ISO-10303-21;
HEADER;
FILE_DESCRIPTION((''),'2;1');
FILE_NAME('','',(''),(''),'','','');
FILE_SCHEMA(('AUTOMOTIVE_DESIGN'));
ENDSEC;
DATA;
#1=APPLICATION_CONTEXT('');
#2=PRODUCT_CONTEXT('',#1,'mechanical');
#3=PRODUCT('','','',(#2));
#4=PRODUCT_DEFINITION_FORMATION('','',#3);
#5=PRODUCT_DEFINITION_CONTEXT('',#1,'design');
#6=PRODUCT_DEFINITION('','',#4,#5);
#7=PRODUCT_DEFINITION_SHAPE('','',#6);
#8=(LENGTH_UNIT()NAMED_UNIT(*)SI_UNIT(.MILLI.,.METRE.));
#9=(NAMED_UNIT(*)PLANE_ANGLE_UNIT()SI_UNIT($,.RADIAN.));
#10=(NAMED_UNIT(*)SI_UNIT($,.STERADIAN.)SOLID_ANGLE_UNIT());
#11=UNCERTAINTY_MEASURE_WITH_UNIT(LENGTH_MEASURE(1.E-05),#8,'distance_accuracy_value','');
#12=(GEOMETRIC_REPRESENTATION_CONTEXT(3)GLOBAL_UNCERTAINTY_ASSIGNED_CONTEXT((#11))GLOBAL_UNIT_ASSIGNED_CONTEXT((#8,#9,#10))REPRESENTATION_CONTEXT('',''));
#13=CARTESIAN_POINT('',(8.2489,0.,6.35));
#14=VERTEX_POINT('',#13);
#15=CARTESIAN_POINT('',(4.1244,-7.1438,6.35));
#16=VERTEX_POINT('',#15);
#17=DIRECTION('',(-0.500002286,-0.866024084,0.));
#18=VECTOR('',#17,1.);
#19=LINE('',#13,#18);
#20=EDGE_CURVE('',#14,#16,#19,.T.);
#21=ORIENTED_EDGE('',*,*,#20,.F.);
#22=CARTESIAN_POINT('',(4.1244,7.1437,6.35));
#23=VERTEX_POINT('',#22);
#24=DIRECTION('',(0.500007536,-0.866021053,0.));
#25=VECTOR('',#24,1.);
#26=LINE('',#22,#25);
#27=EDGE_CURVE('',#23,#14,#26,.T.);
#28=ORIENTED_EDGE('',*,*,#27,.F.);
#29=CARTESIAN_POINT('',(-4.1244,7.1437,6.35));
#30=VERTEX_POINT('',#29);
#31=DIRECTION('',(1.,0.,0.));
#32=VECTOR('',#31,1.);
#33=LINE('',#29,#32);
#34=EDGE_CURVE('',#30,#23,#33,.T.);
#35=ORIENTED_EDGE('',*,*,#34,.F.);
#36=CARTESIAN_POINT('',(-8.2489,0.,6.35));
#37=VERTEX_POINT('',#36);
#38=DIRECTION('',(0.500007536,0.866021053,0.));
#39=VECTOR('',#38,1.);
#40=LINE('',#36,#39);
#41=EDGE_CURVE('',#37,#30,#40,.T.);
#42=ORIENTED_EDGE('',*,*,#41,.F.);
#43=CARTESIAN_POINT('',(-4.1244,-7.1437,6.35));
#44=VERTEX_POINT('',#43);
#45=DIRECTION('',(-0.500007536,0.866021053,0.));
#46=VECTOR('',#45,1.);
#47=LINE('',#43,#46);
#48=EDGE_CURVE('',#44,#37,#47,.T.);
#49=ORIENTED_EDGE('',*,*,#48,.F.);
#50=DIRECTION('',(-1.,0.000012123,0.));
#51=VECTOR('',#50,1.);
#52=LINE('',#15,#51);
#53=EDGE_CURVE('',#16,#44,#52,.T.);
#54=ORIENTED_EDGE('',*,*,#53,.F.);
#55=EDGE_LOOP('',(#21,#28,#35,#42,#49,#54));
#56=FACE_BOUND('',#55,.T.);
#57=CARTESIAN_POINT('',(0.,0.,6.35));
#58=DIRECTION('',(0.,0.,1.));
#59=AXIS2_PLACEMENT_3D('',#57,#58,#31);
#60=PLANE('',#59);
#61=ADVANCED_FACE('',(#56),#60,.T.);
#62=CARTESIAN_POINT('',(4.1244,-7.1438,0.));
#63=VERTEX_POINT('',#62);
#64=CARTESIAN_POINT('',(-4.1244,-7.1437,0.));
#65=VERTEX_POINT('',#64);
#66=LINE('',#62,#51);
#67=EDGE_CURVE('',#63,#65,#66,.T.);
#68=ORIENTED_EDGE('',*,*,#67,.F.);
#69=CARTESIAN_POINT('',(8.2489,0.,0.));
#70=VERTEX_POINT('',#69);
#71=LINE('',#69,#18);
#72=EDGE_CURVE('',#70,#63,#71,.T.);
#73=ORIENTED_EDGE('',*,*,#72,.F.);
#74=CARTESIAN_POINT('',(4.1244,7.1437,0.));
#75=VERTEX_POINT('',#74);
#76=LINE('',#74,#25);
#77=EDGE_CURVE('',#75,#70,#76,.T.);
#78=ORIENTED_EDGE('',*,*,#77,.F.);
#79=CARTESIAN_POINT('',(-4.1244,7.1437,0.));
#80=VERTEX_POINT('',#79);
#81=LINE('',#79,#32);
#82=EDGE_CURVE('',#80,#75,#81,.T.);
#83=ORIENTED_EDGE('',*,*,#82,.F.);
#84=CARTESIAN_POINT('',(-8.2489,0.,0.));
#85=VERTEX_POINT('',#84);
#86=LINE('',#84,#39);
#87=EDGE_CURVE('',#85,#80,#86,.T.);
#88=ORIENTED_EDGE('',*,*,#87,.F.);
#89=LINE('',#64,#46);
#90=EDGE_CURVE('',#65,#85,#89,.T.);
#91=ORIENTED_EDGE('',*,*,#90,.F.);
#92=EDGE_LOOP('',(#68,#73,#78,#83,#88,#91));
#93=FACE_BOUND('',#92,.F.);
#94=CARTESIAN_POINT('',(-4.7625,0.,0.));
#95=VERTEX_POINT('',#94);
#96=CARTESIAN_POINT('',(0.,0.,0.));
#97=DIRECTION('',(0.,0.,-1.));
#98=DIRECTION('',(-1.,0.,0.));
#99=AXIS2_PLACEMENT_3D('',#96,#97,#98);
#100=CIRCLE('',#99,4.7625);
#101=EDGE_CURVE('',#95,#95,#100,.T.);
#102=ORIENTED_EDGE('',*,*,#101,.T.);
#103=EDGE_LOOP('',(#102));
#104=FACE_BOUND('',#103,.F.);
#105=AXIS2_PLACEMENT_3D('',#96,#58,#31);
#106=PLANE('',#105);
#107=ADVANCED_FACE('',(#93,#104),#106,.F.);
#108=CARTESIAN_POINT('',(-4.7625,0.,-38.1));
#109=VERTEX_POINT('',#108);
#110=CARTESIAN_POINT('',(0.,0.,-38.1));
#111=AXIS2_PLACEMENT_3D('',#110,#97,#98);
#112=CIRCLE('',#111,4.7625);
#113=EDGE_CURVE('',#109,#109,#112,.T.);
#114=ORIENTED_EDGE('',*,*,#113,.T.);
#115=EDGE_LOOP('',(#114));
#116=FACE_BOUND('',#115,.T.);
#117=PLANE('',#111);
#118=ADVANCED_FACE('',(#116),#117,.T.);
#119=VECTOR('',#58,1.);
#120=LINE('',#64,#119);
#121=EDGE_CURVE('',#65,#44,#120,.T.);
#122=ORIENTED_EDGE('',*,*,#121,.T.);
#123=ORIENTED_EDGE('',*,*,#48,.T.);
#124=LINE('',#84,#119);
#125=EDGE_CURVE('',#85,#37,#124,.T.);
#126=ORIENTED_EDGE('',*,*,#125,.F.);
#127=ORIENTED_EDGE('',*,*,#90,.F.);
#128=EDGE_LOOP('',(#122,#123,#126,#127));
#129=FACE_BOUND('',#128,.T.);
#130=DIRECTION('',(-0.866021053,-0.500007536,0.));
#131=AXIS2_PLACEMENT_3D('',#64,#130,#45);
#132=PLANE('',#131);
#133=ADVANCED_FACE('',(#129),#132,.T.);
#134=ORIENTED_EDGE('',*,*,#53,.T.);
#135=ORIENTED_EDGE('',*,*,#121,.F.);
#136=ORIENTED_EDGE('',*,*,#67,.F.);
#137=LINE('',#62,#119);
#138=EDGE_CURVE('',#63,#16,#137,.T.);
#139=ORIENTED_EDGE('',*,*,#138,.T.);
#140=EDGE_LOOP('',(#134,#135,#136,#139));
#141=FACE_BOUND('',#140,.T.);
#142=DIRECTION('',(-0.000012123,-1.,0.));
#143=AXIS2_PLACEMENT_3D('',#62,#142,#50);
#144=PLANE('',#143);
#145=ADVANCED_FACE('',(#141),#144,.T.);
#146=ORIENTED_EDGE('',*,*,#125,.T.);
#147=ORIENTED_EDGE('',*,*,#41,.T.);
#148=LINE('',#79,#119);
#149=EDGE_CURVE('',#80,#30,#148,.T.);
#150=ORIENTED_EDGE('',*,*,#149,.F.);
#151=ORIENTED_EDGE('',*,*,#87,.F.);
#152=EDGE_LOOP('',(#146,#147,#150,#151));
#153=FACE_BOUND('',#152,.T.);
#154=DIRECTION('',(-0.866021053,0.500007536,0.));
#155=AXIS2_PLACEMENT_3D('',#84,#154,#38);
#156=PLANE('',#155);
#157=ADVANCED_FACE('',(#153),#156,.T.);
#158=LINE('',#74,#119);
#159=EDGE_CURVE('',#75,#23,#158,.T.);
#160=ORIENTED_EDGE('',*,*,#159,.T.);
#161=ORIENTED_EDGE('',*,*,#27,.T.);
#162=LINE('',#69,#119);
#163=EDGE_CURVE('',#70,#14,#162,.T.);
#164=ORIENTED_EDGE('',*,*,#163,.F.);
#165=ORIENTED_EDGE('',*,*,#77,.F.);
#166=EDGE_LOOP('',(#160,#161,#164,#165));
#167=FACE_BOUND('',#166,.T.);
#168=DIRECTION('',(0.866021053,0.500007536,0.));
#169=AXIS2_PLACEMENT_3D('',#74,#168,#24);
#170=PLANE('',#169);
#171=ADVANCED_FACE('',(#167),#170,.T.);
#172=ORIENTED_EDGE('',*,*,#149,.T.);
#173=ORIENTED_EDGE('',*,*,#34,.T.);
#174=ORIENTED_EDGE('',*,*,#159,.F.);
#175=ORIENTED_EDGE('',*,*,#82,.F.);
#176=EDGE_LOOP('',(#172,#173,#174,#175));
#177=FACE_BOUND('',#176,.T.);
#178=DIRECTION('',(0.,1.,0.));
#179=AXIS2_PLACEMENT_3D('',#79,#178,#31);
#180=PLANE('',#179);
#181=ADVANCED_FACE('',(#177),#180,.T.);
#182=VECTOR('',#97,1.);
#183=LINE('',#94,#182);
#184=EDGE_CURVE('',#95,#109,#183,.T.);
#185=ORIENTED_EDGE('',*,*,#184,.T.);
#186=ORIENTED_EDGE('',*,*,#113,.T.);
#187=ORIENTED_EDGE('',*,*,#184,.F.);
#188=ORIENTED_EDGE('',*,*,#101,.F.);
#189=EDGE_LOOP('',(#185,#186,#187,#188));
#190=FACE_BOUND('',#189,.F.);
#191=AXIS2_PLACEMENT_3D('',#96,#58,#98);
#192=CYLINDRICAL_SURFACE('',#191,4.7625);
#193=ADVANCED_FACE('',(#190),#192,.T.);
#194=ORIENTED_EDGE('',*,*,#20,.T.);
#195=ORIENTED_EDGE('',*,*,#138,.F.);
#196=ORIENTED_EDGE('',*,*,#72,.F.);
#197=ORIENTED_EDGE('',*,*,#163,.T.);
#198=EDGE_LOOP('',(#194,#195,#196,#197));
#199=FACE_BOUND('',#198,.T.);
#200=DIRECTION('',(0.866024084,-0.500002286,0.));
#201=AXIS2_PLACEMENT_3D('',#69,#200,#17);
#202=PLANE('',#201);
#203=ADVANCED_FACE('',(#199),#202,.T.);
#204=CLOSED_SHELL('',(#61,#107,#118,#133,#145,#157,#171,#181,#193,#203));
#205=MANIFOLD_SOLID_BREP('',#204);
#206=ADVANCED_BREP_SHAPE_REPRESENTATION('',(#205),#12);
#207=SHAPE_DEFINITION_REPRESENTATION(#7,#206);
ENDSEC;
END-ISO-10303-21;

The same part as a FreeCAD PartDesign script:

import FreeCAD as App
import Part
import Sketcher

V = App.Vector
Q = App.Units.Quantity


def add_polygon(sketch, points):
    """Adds a closed chain of lines whose ends are joined by coincident constraints."""
    first, n = sketch.GeometryCount, len(points)
    for a, b in zip(points, points[1:] + points[:1]):
        sketch.addGeometry(Part.LineSegment(App.Vector(*a, 0), App.Vector(*b, 0)), False)
    for i in range(n):
        sketch.addConstraint(Sketcher.Constraint("Coincident", first + i, 2, first + (i + 1) % n, 1))

doc = App.newDocument("Part")
body = doc.addObject("PartDesign::Body", "Body")

sketch1 = doc.addObject("Sketcher::SketchObject", "Sketch")
body.addObject(sketch1)
sketch1.AttachmentSupport = (doc.XY_Plane, [""])
sketch1.MapMode = "FlatFace"
add_polygon(sketch1, [(8.2489, 0), (4.1244, 7.1437), (-4.1244, 7.1437), (-8.2489, 0), (-4.1244, -7.1437), (4.1244, -7.1438)])
sketch1.addConstraint([
    Sketcher.Constraint("Horizontal", 1),
    Sketcher.Constraint("Horizontal", 4),
    Sketcher.Constraint("Symmetric", 0, 2, 3, 2, -1, 1),
    Sketcher.Constraint("Symmetric", 2, 2, 5, 2, -1, 1),
    Sketcher.Constraint("PointOnObject", 2, 2, -1),
    Sketcher.Constraint("Parallel", 2, 5),
    Sketcher.Constraint("Vertical", 1, 2, 3, 2),
    Sketcher.Constraint("Angle", 0, Q("120.0005 deg")),
    Sketcher.Constraint("DistanceY", 3, 2, 1, 2, Q("0.5625 in")),
    Sketcher.Constraint("DistanceX", 1, 2, 1, 1, Q("8.2488 mm")),
])
pad1 = doc.addObject("PartDesign::Pad", "Pad")
body.addObject(pad1)
pad1.Profile = sketch1
pad1.Length = Q("0.25 in")

sketch2 = doc.addObject("Sketcher::SketchObject", "Sketch001")
body.addObject(sketch2)
sketch2.AttachmentSupport = (doc.XY_Plane, [""])
sketch2.MapMode = "FlatFace"
sketch2.addGeometry(Part.Circle(V(0, 0, 0), V(0, 0, 1), 4.7625), False)
sketch2.addConstraint([
    Sketcher.Constraint("Coincident", 0, 3, -1, 1),
    Sketcher.Constraint("Diameter", 0, Q("0.375 in")),
])
pad2 = doc.addObject("PartDesign::Pad", "Pad001")
body.addObject(pad2)
pad2.Profile = sketch2
pad2.Length = Q("1.5 in")
pad2.Reversed = True

doc.recompute()
